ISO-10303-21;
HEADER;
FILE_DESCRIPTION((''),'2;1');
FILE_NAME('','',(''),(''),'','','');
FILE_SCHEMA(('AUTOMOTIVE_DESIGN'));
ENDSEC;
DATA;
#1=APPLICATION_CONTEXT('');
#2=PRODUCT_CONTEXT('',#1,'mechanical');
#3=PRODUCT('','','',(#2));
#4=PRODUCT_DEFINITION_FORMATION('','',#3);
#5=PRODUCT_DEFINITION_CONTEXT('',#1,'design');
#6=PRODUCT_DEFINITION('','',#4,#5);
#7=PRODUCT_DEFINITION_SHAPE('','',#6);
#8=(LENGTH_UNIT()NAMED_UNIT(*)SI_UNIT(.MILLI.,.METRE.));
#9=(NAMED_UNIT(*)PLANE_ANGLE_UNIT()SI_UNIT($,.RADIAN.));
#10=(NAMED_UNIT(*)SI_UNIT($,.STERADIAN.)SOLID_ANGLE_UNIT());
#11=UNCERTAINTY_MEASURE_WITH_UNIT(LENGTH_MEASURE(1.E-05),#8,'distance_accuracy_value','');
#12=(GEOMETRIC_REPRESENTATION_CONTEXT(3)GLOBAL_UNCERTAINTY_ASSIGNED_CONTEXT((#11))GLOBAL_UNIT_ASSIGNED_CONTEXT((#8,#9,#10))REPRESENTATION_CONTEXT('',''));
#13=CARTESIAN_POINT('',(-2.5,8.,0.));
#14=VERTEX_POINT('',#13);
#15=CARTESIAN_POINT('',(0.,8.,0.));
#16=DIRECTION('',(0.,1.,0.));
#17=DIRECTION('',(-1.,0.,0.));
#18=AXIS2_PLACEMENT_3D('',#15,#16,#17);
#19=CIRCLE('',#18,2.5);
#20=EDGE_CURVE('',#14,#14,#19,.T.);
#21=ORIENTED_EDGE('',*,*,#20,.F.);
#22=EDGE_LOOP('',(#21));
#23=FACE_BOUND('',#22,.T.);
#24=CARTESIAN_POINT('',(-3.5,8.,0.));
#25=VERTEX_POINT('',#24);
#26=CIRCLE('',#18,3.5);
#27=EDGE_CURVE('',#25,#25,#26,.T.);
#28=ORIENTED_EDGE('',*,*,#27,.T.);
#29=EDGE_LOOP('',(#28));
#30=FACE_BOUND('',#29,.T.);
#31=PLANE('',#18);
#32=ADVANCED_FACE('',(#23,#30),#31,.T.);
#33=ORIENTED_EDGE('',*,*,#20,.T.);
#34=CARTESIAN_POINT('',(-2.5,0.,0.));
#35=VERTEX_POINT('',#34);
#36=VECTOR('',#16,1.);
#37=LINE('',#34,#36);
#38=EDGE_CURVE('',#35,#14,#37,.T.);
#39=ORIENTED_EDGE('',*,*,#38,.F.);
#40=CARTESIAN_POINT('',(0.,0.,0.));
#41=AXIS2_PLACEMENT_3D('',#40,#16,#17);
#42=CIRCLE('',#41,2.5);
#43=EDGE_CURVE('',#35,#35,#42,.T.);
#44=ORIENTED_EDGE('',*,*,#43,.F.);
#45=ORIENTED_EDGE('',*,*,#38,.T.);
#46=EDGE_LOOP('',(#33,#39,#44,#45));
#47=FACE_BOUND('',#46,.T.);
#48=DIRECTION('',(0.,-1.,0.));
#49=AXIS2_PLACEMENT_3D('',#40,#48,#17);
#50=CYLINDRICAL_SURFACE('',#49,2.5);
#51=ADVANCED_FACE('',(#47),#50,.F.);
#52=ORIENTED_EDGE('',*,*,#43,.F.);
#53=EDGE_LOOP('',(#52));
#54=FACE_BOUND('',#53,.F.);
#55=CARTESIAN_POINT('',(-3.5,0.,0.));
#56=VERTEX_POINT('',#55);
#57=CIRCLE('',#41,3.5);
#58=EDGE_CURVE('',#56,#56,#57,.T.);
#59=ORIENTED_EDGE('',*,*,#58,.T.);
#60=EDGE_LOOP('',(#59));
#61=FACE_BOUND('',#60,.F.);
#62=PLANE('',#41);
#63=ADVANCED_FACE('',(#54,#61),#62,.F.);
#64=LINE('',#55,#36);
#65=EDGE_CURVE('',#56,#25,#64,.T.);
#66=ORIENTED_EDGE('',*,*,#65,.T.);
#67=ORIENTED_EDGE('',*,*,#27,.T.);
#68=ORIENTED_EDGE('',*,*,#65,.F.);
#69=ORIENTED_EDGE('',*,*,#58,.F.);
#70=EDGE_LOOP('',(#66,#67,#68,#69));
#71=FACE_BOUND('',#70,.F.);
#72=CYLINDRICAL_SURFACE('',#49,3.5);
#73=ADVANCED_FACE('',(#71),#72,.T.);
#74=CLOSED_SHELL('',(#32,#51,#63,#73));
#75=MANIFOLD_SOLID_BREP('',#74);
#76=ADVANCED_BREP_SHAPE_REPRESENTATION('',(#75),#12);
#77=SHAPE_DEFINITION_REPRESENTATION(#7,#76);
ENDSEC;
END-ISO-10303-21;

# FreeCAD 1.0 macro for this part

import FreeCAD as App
import Part
import Sketcher
from FreeCAD import Vector

doc = App.newDocument("Part")
body = doc.addObject("PartDesign::Body", "Body")

# Sketch on XZ plane
sketch1 = body.newObject("Sketcher::SketchObject", "Sketch")
sketch1.AttachmentSupport = (doc.getObject("XZ_Plane"), [""])
sketch1.MapMode = "FlatFace"
sketch1.addGeometry(Part.Circle(Vector(0, 0, 0), Vector(0, 0, 1), 3.5), False)
sketch1.addGeometry(Part.Circle(Vector(0, 0, 0), Vector(0, 0, 1), 2.5), False)
sketch1.addConstraint(Sketcher.Constraint("Coincident", 0, 3, -1, 1))
sketch1.addConstraint(Sketcher.Constraint("Coincident", 1, 3, -1, 1))
sketch1.addConstraint(Sketcher.Constraint("Diameter", 0, 7.0))
sketch1.addConstraint(Sketcher.Constraint("Diameter", 1, 5.0))
pad1 = body.newObject("PartDesign::Pad", "Pad")
pad1.Profile = sketch1
pad1.Length = 8
pad1.Reversed = True

doc.recompute()
